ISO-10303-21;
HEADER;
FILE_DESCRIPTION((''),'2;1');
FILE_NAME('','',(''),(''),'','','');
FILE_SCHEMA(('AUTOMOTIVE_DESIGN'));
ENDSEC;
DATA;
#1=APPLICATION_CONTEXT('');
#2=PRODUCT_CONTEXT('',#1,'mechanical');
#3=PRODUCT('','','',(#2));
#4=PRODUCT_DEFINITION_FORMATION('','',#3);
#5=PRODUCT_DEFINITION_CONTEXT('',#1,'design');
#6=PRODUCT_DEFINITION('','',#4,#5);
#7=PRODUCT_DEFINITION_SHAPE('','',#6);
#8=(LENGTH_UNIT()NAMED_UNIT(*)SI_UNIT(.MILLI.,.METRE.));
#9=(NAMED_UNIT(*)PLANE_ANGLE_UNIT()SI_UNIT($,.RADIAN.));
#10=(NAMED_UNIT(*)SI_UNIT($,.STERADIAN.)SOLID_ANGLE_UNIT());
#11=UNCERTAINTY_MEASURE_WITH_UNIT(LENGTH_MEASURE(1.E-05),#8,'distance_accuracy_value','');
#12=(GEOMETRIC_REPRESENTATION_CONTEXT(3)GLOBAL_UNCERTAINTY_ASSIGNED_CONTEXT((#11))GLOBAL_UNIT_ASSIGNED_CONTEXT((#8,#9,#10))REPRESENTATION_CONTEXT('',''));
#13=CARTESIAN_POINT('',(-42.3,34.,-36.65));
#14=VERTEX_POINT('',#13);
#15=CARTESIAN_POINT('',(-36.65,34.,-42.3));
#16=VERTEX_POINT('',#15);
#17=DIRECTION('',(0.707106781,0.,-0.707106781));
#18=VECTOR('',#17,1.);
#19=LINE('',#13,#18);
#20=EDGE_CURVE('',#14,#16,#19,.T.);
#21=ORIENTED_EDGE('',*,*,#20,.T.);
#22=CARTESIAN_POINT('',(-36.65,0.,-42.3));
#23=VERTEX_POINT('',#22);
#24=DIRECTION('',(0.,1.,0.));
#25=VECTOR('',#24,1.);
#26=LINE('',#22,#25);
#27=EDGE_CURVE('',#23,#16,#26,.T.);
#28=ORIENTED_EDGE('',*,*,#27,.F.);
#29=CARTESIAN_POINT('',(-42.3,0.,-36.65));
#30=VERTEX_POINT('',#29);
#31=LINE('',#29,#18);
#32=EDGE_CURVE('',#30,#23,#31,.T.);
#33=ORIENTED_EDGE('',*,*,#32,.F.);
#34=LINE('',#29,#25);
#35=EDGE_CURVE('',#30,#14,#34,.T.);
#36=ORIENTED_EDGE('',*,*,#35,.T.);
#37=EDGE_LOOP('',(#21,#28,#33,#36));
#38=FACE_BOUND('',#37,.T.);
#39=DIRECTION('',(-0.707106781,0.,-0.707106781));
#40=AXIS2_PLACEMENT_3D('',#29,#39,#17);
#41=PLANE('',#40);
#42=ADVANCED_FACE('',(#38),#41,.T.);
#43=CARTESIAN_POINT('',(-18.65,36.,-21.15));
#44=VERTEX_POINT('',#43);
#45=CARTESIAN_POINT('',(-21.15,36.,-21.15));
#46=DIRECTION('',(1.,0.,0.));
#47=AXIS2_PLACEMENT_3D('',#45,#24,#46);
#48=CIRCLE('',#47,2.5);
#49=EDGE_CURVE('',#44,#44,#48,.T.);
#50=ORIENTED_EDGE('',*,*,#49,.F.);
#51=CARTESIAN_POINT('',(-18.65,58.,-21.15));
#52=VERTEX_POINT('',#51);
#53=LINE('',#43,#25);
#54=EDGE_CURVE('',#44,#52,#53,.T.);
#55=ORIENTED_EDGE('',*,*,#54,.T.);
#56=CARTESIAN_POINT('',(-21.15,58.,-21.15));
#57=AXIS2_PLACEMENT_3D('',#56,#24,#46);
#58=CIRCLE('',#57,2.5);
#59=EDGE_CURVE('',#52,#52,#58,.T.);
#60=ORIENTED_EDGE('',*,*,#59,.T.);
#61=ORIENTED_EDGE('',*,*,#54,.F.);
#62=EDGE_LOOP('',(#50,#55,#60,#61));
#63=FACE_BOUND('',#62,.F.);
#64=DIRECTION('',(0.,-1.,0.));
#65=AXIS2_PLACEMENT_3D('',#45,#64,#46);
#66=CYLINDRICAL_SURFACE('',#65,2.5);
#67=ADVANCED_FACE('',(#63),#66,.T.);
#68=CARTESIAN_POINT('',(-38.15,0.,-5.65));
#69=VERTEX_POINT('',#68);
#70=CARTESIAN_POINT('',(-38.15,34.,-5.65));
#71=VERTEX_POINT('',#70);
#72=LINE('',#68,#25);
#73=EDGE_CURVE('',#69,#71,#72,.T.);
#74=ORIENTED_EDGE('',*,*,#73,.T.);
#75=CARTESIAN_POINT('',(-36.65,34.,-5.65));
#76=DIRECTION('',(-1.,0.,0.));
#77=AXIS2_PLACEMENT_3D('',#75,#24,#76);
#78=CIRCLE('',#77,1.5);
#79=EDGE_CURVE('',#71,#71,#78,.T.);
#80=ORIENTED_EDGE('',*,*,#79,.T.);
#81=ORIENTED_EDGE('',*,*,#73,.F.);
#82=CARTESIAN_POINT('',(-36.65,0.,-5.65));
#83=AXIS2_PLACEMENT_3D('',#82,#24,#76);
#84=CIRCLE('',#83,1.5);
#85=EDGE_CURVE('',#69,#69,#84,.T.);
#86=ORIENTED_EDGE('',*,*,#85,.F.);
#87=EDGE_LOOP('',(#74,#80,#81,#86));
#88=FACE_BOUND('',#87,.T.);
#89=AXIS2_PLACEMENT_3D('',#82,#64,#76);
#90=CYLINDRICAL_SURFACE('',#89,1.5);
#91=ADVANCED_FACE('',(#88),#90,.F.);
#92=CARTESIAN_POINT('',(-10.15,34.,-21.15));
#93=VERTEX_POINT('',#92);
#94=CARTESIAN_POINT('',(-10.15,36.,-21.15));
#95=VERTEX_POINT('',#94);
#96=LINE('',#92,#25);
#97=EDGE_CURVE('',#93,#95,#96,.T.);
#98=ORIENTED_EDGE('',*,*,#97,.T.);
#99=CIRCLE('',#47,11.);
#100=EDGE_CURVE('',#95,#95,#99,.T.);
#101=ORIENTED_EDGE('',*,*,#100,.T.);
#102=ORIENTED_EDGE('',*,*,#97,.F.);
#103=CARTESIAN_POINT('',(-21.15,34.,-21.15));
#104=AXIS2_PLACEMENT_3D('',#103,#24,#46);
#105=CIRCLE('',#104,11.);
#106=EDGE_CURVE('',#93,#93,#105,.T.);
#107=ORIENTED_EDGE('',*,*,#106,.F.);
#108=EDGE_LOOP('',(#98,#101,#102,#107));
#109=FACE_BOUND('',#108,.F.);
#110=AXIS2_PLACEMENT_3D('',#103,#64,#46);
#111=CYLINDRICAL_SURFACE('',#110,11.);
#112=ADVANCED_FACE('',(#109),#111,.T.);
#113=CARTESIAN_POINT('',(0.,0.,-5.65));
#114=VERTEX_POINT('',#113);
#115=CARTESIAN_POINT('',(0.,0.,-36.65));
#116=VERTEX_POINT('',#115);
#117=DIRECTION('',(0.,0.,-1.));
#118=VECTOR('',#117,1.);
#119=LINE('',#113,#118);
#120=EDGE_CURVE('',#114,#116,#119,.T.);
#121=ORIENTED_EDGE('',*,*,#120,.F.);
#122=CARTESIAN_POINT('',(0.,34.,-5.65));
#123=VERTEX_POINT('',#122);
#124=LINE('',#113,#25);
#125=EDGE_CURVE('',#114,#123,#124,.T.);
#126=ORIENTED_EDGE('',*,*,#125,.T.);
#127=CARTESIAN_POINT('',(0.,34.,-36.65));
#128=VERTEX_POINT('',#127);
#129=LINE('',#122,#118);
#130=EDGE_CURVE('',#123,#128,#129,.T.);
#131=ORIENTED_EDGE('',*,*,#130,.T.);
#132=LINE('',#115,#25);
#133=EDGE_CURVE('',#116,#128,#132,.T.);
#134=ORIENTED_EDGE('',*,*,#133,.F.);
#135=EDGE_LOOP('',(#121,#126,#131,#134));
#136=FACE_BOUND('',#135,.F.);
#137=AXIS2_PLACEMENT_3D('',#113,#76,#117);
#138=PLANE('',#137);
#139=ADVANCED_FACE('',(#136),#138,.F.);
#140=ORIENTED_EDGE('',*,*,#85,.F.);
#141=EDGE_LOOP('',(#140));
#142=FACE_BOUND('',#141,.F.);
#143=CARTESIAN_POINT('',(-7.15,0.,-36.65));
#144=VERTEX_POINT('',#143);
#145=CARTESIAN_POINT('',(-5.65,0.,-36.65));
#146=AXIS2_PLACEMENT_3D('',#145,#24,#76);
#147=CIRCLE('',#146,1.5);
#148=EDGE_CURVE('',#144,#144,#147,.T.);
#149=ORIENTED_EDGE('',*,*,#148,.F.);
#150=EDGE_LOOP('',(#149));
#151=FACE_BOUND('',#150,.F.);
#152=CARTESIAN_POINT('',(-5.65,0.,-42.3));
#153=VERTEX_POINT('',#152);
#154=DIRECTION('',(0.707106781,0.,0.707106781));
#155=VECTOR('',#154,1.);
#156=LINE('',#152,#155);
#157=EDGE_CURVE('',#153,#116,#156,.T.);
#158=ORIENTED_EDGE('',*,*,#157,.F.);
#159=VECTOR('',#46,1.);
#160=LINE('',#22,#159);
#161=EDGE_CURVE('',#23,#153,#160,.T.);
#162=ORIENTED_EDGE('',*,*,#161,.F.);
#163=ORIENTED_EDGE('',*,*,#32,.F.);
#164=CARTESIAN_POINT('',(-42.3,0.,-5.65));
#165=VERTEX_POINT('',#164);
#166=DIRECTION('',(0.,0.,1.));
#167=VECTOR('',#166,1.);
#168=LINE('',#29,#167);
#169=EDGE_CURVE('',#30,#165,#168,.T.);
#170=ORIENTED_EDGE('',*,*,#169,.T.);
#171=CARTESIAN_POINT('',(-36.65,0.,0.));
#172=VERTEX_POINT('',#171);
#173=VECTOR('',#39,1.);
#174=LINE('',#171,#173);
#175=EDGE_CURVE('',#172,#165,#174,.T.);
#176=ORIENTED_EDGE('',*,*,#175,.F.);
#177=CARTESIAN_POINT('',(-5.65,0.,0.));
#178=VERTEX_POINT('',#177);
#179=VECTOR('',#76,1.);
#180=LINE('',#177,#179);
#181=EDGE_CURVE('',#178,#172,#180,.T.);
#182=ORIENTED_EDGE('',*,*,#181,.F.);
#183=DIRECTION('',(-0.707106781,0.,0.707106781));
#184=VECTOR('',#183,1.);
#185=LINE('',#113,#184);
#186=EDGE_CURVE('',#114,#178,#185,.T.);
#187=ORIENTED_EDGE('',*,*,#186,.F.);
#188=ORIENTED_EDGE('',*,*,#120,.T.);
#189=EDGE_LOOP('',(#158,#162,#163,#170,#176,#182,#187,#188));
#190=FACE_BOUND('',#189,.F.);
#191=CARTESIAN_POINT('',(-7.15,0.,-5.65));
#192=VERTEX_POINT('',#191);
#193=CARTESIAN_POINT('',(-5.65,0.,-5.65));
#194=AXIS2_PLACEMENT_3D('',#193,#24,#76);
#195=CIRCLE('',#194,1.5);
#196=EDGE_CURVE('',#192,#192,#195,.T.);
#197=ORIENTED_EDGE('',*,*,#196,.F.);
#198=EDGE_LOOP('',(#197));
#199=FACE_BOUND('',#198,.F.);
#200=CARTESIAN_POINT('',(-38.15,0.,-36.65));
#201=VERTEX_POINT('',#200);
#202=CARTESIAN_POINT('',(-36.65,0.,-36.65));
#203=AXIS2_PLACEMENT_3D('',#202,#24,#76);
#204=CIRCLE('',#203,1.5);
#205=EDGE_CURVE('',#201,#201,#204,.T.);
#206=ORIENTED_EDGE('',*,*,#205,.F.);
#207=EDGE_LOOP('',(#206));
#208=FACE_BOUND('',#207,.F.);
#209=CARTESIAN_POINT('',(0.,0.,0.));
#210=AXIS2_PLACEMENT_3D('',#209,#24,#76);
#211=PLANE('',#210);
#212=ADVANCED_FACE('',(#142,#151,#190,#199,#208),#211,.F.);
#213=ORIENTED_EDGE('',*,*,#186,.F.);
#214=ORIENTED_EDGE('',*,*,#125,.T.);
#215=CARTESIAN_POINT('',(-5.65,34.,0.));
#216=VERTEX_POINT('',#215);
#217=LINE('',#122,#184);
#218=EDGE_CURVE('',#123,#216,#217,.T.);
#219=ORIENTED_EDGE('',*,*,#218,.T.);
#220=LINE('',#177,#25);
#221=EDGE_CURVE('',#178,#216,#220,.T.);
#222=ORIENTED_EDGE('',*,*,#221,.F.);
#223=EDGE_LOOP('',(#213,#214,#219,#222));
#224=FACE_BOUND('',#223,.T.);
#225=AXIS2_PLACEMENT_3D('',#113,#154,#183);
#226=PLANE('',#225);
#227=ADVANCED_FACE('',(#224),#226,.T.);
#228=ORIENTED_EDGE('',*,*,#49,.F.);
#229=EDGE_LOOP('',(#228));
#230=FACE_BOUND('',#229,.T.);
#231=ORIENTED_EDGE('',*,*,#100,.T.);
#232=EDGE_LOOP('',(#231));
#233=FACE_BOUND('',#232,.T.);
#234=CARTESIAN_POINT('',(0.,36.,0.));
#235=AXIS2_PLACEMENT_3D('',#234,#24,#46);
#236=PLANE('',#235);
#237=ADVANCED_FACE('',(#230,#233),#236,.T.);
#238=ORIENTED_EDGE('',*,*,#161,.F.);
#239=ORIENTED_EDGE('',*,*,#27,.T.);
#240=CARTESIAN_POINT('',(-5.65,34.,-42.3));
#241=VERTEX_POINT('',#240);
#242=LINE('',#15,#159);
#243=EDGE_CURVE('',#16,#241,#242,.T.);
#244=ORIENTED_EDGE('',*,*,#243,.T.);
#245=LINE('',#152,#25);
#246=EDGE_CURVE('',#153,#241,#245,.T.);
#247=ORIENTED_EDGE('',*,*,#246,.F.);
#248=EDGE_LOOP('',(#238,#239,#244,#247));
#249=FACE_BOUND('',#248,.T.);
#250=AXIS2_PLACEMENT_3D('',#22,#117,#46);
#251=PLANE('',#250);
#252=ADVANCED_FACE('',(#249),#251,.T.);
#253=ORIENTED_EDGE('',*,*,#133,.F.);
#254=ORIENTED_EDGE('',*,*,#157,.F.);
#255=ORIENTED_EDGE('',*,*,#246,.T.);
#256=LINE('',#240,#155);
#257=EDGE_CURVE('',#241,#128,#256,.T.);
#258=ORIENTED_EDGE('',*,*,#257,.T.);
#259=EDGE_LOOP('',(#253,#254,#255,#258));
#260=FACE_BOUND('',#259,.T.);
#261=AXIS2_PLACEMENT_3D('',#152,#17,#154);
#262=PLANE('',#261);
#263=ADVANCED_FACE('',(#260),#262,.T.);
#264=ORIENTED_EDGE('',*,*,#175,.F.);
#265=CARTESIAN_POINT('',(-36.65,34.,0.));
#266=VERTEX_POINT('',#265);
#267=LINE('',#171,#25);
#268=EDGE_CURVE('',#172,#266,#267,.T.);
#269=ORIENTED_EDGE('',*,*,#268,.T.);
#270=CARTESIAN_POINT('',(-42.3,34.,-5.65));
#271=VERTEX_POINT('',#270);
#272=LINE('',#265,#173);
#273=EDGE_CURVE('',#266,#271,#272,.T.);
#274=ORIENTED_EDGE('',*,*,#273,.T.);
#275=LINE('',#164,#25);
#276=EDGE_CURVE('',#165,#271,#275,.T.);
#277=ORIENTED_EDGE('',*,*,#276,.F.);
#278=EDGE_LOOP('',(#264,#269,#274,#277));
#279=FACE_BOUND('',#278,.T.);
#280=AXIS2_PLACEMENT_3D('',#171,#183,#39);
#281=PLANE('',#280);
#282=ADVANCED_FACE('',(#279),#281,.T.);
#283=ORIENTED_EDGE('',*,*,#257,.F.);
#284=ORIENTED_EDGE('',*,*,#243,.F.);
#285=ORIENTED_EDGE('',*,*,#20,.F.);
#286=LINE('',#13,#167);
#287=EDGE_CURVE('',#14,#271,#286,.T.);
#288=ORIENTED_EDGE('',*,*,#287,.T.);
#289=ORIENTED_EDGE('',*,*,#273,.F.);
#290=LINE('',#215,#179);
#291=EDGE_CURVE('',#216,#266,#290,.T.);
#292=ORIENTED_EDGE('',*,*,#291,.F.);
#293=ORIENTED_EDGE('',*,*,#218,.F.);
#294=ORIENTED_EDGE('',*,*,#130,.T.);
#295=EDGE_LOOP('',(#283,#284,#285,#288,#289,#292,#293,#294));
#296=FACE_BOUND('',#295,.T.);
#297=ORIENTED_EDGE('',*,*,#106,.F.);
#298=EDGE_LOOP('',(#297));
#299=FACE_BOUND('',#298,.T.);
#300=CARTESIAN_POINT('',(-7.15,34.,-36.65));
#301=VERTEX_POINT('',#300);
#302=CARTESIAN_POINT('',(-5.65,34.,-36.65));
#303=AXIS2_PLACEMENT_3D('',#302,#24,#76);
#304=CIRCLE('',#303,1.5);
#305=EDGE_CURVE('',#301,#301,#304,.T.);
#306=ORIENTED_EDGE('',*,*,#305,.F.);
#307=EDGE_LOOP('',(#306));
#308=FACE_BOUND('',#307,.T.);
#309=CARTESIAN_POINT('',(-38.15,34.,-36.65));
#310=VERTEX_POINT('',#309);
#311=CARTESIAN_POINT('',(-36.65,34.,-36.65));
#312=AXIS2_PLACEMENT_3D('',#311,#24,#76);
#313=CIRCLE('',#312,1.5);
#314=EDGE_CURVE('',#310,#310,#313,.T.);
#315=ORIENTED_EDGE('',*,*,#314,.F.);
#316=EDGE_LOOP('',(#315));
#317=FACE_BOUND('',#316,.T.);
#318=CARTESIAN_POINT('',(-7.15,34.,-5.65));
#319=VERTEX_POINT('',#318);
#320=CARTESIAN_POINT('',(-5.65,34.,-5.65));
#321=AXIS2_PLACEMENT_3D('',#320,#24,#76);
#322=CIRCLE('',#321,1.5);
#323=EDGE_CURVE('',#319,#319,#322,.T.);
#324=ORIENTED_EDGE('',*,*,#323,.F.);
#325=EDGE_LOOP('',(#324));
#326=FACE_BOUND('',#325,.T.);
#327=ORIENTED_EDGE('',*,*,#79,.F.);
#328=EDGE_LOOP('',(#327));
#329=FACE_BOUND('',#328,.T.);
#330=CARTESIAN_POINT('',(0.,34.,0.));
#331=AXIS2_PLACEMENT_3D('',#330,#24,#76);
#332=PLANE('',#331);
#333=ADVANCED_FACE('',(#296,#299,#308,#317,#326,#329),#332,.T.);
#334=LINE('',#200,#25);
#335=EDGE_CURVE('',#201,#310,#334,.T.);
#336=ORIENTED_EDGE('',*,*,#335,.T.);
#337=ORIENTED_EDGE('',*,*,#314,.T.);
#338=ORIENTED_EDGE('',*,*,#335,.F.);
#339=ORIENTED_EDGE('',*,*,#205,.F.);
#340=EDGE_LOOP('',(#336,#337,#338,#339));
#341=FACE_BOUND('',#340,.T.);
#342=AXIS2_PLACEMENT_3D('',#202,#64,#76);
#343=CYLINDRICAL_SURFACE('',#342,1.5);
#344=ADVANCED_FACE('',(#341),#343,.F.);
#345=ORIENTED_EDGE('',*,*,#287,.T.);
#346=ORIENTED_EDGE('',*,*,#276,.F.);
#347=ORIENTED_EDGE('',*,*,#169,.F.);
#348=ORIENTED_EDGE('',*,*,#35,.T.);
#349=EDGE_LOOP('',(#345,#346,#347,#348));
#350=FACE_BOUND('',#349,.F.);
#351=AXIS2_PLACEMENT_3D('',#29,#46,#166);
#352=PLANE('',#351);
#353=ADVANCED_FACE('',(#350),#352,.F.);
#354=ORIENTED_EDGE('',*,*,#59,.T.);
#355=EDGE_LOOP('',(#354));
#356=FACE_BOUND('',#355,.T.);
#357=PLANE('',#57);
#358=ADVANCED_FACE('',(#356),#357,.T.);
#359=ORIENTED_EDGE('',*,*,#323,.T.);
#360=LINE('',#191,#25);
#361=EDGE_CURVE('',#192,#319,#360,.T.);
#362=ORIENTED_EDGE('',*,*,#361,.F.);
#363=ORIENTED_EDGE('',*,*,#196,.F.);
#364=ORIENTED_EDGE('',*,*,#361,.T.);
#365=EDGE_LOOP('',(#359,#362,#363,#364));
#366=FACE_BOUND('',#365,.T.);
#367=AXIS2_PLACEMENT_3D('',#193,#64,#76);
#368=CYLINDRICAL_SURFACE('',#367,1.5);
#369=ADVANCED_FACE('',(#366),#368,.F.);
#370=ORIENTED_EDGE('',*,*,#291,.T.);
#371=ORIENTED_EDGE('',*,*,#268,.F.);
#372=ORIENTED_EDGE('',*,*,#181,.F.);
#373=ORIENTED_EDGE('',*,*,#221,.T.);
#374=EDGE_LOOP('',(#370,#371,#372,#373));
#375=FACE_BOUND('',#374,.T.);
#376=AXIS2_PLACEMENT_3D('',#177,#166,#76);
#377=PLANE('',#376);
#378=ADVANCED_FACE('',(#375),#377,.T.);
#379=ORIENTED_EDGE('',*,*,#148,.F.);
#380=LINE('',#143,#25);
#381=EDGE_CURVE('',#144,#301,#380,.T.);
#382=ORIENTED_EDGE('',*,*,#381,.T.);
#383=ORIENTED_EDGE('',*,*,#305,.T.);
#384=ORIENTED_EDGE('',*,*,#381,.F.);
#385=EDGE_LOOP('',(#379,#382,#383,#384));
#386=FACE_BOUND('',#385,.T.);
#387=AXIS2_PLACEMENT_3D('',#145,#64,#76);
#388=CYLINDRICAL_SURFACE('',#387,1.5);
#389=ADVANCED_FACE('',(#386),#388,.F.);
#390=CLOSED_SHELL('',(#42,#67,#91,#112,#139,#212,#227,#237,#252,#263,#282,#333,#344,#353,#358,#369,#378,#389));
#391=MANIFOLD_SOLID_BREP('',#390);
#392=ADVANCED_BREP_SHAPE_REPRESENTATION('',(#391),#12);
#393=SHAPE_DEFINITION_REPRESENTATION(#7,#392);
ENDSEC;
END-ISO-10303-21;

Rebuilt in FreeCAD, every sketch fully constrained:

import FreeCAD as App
import Part
import Sketcher


def add_polygon(sketch, points):
    """Adds a closed chain of lines whose ends are joined by coincident constraints."""
    first, n = sketch.GeometryCount, len(points)
    for a, b in zip(points, points[1:] + points[:1]):
        sketch.addGeometry(Part.LineSegment(App.Vector(*a, 0), App.Vector(*b, 0)), False)
    for i in range(n):
        sketch.addConstraint(Sketcher.Constraint("Coincident", first + i, 2, first + (i + 1) % n, 1))

doc = App.newDocument("Part")
params = doc.addObject("Spreadsheet::Sheet", "Params")
for row, (alias, value) in enumerate([
    ("sketch1_diameter", "3 mm"),
    ("sketch1_width", "31 mm"),
    ("pad1_length", "34 mm"),
    ("sketch2_diameter", "22 mm"),
    ("pad2_length", "2 mm"),
    ("sketch3_diameter", "5 mm"),
    ("pad3_length", "22 mm"),
], start=1):
    params.set(f"A{row}", alias)
    params.set(f"B{row}", "=" + value)
    params.setAlias(f"B{row}", alias)

body = doc.addObject("PartDesign::Body", "Body")

sketch1 = doc.addObject("Sketcher::SketchObject", "Sketch")
body.addObject(sketch1)
sketch1.AttachmentSupport = (doc.XZ_Plane, [""])
sketch1.MapMode = "FlatFace"
add_polygon(sketch1, [(-5.7, 0), (0, -5.7), (0, -36.6), (-5.7, -42.3), (-36.6, -42.3), (-42.3, -36.6), (-42.3, -5.7), (-36.6, 0)])
sketch1.addGeometry(Part.Circle(App.Vector(-5.7, -36.6, 0), App.Vector(0, 0, 1), 1.5), False)
sketch1.addGeometry(Part.Circle(App.Vector(-36.6, -36.6, 0), App.Vector(0, 0, 1), 1.5), False)
sketch1.addGeometry(Part.Circle(App.Vector(-5.7, -5.7, 0), App.Vector(0, 0, 1), 1.5), False)
sketch1.addGeometry(Part.Circle(App.Vector(-36.6, -5.7, 0), App.Vector(0, 0, 1), 1.5), False)
sketch1.addConstraint(Sketcher.Constraint("Vertical", 1))
sketch1.addConstraint(Sketcher.Constraint("Horizontal", 3))
sketch1.addConstraint(Sketcher.Constraint("Vertical", 5))
sketch1.addConstraint(Sketcher.Constraint("Horizontal", 7))
sketch1.addConstraint(Sketcher.Constraint("Equal", 8, 9))
sketch1.addConstraint(Sketcher.Constraint("Equal", 9, 10))
sketch1.addConstraint(Sketcher.Constraint("Equal", 10, 11))
sketch1.addConstraint(Sketcher.Constraint("PointOnObject", 0, 2, -2))
sketch1.addConstraint(Sketcher.Constraint("PointOnObject", 6, 2, -1))
sketch1.addConstraint(Sketcher.Constraint("Perpendicular", 0, 2))
sketch1.addConstraint(Sketcher.Constraint("Perpendicular", 2, 4))
sketch1.addConstraint(Sketcher.Constraint("Perpendicular", 4, 6))
sketch1.addConstraint(Sketcher.Constraint("Horizontal", 8, 3, 9, 3))
sketch1.addConstraint(Sketcher.Constraint("Horizontal", 10, 3, 11, 3))
sketch1.addConstraint(Sketcher.Constraint("Horizontal", 11, 3, 0, 2))
sketch1.addConstraint(Sketcher.Constraint("Horizontal", 9, 3, 1, 2))
sketch1.addConstraint(Sketcher.Constraint("Horizontal", 1, 2, 4, 2))
sketch1.addConstraint(Sketcher.Constraint("Horizontal", 0, 2, 5, 2))
sketch1.addConstraint(Sketcher.Constraint("Vertical", 8, 3, 10, 3))
sketch1.addConstraint(Sketcher.Constraint("Vertical", 9, 3, 11, 3))
sketch1.addConstraint(Sketcher.Constraint("Vertical", 10, 3, 2, 2))
sketch1.addConstraint(Sketcher.Constraint("Vertical", 11, 3, 3, 2))
sketch1.addConstraint(Sketcher.Constraint("Vertical", 3, 2, 6, 2))
sketch1.addConstraint(Sketcher.Constraint("Vertical", 2, 2, 7, 2))
sketch1.addConstraint(Sketcher.Constraint("Equal", 7, 1))
sketch1.addConstraint(Sketcher.Constraint("Diameter", 8, 3.0))
sketch1.addConstraint(Sketcher.Constraint("DistanceX", 3, 2, 3, 1, 31.0))
sketch1.addConstraint(Sketcher.Constraint("DistanceY", 2, 2, -1, 1, 42.3))
sketch1.setExpression("Constraints[33]", "Params.sketch1_diameter")
sketch1.setExpression("Constraints[34]", "Params.sketch1_width")
pad1 = doc.addObject("PartDesign::Pad", "Pad")
body.addObject(pad1)
pad1.Profile = sketch1
pad1.setExpression("Length", "Params.pad1_length")
pad1.Reversed = True

sketch2 = doc.addObject("Sketcher::SketchObject", "Sketch001")
body.addObject(sketch2)
sketch2.AttachmentSupport = (doc.XZ_Plane, [""])
sketch2.MapMode = "FlatFace"
sketch2.AttachmentOffset = App.Placement(App.Vector(0, 0, -34), App.Rotation())
sketch2.addGeometry(Part.Circle(App.Vector(-21, -21, 0), App.Vector(0, 0, 1), 11), False)
sketch2.addConstraint(Sketcher.Constraint("Diameter", 0, 22.0))
sketch2.addConstraint(Sketcher.Constraint("DistanceX", 0, 3, -1, 1, 21.15))
sketch2.addConstraint(Sketcher.Constraint("DistanceY", 0, 3, -1, 1, 21.15))
sketch2.setExpression("Constraints[0]", "Params.sketch2_diameter")
pad2 = doc.addObject("PartDesign::Pad", "Pad001")
body.addObject(pad2)
pad2.Profile = sketch2
pad2.setExpression("Length", "Params.pad2_length")
pad2.Reversed = True

sketch3 = doc.addObject("Sketcher::SketchObject", "Sketch002")
body.addObject(sketch3)
sketch3.AttachmentSupport = (doc.XZ_Plane, [""])
sketch3.MapMode = "FlatFace"
sketch3.AttachmentOffset = App.Placement(App.Vector(0, 0, -36), App.Rotation())
sketch3.addGeometry(Part.Circle(App.Vector(-21.1, -21.1, 0), App.Vector(0, 0, 1), 2.5), False)
sketch3.addConstraint(Sketcher.Constraint("Diameter", 0, 5.0))
sketch3.addConstraint(Sketcher.Constraint("DistanceX", 0, 3, -1, 1, 21.15))
sketch3.addConstraint(Sketcher.Constraint("DistanceY", 0, 3, -1, 1, 21.15))
sketch3.setExpression("Constraints[0]", "Params.sketch3_diameter")
pad3 = doc.addObject("PartDesign::Pad", "Pad002")
body.addObject(pad3)
pad3.Profile = sketch3
pad3.setExpression("Length", "Params.pad3_length")
pad3.Reversed = True

doc.recompute()
